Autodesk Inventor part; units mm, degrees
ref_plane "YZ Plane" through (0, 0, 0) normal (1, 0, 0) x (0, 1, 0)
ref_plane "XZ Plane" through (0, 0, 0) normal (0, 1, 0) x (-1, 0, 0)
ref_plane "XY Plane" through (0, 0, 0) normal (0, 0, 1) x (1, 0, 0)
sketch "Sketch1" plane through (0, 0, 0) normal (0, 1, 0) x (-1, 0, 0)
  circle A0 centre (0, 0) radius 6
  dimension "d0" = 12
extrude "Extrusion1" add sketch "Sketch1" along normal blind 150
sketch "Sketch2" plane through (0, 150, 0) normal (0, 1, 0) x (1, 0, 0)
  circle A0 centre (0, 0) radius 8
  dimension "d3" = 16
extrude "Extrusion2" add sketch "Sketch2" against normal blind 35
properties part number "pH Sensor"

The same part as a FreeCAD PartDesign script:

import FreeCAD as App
import Part
import Sketcher

V = App.Vector

doc = App.newDocument("Part")
body = doc.addObject("PartDesign::Body", "Body")

# Sketch on XZ plane
sketch1 = doc.addObject("Sketcher::SketchObject", "Sketch")
body.addObject(sketch1)
sketch1.AttachmentSupport = (doc.XZ_Plane, [""])
sketch1.MapMode = "FlatFace"
sketch1.addGeometry(Part.Circle(V(0, 0, 0), V(0, 0, 1), 6), False)
sketch1.addConstraint([
    Sketcher.Constraint("Coincident", 0, 3, -1, 1),
    Sketcher.Constraint("Diameter", 0, 12.0),
])
pad1 = doc.addObject("PartDesign::Pad", "Pad")
body.addObject(pad1)
pad1.Profile = sketch1
pad1.Length = 150
pad1.Reversed = True

# Sketch on XZ plane
sketch2 = doc.addObject("Sketcher::SketchObject", "Sketch001")
body.addObject(sketch2)
sketch2.AttachmentSupport = (doc.XZ_Plane, [""])
sketch2.MapMode = "FlatFace"
sketch2.AttachmentOffset = App.Placement(V(0, 0, -150), App.Rotation())
sketch2.addGeometry(Part.Circle(V(0, 0, 0), V(0, 0, 1), 8), False)
sketch2.addConstraint([
    Sketcher.Constraint("Coincident", 0, 3, -1, 1),
    Sketcher.Constraint("Diameter", 0, 16.0),
])
pad2 = doc.addObject("PartDesign::Pad", "Pad001")
body.addObject(pad2)
pad2.Profile = sketch2
pad2.Length = 35

doc.recompute()
